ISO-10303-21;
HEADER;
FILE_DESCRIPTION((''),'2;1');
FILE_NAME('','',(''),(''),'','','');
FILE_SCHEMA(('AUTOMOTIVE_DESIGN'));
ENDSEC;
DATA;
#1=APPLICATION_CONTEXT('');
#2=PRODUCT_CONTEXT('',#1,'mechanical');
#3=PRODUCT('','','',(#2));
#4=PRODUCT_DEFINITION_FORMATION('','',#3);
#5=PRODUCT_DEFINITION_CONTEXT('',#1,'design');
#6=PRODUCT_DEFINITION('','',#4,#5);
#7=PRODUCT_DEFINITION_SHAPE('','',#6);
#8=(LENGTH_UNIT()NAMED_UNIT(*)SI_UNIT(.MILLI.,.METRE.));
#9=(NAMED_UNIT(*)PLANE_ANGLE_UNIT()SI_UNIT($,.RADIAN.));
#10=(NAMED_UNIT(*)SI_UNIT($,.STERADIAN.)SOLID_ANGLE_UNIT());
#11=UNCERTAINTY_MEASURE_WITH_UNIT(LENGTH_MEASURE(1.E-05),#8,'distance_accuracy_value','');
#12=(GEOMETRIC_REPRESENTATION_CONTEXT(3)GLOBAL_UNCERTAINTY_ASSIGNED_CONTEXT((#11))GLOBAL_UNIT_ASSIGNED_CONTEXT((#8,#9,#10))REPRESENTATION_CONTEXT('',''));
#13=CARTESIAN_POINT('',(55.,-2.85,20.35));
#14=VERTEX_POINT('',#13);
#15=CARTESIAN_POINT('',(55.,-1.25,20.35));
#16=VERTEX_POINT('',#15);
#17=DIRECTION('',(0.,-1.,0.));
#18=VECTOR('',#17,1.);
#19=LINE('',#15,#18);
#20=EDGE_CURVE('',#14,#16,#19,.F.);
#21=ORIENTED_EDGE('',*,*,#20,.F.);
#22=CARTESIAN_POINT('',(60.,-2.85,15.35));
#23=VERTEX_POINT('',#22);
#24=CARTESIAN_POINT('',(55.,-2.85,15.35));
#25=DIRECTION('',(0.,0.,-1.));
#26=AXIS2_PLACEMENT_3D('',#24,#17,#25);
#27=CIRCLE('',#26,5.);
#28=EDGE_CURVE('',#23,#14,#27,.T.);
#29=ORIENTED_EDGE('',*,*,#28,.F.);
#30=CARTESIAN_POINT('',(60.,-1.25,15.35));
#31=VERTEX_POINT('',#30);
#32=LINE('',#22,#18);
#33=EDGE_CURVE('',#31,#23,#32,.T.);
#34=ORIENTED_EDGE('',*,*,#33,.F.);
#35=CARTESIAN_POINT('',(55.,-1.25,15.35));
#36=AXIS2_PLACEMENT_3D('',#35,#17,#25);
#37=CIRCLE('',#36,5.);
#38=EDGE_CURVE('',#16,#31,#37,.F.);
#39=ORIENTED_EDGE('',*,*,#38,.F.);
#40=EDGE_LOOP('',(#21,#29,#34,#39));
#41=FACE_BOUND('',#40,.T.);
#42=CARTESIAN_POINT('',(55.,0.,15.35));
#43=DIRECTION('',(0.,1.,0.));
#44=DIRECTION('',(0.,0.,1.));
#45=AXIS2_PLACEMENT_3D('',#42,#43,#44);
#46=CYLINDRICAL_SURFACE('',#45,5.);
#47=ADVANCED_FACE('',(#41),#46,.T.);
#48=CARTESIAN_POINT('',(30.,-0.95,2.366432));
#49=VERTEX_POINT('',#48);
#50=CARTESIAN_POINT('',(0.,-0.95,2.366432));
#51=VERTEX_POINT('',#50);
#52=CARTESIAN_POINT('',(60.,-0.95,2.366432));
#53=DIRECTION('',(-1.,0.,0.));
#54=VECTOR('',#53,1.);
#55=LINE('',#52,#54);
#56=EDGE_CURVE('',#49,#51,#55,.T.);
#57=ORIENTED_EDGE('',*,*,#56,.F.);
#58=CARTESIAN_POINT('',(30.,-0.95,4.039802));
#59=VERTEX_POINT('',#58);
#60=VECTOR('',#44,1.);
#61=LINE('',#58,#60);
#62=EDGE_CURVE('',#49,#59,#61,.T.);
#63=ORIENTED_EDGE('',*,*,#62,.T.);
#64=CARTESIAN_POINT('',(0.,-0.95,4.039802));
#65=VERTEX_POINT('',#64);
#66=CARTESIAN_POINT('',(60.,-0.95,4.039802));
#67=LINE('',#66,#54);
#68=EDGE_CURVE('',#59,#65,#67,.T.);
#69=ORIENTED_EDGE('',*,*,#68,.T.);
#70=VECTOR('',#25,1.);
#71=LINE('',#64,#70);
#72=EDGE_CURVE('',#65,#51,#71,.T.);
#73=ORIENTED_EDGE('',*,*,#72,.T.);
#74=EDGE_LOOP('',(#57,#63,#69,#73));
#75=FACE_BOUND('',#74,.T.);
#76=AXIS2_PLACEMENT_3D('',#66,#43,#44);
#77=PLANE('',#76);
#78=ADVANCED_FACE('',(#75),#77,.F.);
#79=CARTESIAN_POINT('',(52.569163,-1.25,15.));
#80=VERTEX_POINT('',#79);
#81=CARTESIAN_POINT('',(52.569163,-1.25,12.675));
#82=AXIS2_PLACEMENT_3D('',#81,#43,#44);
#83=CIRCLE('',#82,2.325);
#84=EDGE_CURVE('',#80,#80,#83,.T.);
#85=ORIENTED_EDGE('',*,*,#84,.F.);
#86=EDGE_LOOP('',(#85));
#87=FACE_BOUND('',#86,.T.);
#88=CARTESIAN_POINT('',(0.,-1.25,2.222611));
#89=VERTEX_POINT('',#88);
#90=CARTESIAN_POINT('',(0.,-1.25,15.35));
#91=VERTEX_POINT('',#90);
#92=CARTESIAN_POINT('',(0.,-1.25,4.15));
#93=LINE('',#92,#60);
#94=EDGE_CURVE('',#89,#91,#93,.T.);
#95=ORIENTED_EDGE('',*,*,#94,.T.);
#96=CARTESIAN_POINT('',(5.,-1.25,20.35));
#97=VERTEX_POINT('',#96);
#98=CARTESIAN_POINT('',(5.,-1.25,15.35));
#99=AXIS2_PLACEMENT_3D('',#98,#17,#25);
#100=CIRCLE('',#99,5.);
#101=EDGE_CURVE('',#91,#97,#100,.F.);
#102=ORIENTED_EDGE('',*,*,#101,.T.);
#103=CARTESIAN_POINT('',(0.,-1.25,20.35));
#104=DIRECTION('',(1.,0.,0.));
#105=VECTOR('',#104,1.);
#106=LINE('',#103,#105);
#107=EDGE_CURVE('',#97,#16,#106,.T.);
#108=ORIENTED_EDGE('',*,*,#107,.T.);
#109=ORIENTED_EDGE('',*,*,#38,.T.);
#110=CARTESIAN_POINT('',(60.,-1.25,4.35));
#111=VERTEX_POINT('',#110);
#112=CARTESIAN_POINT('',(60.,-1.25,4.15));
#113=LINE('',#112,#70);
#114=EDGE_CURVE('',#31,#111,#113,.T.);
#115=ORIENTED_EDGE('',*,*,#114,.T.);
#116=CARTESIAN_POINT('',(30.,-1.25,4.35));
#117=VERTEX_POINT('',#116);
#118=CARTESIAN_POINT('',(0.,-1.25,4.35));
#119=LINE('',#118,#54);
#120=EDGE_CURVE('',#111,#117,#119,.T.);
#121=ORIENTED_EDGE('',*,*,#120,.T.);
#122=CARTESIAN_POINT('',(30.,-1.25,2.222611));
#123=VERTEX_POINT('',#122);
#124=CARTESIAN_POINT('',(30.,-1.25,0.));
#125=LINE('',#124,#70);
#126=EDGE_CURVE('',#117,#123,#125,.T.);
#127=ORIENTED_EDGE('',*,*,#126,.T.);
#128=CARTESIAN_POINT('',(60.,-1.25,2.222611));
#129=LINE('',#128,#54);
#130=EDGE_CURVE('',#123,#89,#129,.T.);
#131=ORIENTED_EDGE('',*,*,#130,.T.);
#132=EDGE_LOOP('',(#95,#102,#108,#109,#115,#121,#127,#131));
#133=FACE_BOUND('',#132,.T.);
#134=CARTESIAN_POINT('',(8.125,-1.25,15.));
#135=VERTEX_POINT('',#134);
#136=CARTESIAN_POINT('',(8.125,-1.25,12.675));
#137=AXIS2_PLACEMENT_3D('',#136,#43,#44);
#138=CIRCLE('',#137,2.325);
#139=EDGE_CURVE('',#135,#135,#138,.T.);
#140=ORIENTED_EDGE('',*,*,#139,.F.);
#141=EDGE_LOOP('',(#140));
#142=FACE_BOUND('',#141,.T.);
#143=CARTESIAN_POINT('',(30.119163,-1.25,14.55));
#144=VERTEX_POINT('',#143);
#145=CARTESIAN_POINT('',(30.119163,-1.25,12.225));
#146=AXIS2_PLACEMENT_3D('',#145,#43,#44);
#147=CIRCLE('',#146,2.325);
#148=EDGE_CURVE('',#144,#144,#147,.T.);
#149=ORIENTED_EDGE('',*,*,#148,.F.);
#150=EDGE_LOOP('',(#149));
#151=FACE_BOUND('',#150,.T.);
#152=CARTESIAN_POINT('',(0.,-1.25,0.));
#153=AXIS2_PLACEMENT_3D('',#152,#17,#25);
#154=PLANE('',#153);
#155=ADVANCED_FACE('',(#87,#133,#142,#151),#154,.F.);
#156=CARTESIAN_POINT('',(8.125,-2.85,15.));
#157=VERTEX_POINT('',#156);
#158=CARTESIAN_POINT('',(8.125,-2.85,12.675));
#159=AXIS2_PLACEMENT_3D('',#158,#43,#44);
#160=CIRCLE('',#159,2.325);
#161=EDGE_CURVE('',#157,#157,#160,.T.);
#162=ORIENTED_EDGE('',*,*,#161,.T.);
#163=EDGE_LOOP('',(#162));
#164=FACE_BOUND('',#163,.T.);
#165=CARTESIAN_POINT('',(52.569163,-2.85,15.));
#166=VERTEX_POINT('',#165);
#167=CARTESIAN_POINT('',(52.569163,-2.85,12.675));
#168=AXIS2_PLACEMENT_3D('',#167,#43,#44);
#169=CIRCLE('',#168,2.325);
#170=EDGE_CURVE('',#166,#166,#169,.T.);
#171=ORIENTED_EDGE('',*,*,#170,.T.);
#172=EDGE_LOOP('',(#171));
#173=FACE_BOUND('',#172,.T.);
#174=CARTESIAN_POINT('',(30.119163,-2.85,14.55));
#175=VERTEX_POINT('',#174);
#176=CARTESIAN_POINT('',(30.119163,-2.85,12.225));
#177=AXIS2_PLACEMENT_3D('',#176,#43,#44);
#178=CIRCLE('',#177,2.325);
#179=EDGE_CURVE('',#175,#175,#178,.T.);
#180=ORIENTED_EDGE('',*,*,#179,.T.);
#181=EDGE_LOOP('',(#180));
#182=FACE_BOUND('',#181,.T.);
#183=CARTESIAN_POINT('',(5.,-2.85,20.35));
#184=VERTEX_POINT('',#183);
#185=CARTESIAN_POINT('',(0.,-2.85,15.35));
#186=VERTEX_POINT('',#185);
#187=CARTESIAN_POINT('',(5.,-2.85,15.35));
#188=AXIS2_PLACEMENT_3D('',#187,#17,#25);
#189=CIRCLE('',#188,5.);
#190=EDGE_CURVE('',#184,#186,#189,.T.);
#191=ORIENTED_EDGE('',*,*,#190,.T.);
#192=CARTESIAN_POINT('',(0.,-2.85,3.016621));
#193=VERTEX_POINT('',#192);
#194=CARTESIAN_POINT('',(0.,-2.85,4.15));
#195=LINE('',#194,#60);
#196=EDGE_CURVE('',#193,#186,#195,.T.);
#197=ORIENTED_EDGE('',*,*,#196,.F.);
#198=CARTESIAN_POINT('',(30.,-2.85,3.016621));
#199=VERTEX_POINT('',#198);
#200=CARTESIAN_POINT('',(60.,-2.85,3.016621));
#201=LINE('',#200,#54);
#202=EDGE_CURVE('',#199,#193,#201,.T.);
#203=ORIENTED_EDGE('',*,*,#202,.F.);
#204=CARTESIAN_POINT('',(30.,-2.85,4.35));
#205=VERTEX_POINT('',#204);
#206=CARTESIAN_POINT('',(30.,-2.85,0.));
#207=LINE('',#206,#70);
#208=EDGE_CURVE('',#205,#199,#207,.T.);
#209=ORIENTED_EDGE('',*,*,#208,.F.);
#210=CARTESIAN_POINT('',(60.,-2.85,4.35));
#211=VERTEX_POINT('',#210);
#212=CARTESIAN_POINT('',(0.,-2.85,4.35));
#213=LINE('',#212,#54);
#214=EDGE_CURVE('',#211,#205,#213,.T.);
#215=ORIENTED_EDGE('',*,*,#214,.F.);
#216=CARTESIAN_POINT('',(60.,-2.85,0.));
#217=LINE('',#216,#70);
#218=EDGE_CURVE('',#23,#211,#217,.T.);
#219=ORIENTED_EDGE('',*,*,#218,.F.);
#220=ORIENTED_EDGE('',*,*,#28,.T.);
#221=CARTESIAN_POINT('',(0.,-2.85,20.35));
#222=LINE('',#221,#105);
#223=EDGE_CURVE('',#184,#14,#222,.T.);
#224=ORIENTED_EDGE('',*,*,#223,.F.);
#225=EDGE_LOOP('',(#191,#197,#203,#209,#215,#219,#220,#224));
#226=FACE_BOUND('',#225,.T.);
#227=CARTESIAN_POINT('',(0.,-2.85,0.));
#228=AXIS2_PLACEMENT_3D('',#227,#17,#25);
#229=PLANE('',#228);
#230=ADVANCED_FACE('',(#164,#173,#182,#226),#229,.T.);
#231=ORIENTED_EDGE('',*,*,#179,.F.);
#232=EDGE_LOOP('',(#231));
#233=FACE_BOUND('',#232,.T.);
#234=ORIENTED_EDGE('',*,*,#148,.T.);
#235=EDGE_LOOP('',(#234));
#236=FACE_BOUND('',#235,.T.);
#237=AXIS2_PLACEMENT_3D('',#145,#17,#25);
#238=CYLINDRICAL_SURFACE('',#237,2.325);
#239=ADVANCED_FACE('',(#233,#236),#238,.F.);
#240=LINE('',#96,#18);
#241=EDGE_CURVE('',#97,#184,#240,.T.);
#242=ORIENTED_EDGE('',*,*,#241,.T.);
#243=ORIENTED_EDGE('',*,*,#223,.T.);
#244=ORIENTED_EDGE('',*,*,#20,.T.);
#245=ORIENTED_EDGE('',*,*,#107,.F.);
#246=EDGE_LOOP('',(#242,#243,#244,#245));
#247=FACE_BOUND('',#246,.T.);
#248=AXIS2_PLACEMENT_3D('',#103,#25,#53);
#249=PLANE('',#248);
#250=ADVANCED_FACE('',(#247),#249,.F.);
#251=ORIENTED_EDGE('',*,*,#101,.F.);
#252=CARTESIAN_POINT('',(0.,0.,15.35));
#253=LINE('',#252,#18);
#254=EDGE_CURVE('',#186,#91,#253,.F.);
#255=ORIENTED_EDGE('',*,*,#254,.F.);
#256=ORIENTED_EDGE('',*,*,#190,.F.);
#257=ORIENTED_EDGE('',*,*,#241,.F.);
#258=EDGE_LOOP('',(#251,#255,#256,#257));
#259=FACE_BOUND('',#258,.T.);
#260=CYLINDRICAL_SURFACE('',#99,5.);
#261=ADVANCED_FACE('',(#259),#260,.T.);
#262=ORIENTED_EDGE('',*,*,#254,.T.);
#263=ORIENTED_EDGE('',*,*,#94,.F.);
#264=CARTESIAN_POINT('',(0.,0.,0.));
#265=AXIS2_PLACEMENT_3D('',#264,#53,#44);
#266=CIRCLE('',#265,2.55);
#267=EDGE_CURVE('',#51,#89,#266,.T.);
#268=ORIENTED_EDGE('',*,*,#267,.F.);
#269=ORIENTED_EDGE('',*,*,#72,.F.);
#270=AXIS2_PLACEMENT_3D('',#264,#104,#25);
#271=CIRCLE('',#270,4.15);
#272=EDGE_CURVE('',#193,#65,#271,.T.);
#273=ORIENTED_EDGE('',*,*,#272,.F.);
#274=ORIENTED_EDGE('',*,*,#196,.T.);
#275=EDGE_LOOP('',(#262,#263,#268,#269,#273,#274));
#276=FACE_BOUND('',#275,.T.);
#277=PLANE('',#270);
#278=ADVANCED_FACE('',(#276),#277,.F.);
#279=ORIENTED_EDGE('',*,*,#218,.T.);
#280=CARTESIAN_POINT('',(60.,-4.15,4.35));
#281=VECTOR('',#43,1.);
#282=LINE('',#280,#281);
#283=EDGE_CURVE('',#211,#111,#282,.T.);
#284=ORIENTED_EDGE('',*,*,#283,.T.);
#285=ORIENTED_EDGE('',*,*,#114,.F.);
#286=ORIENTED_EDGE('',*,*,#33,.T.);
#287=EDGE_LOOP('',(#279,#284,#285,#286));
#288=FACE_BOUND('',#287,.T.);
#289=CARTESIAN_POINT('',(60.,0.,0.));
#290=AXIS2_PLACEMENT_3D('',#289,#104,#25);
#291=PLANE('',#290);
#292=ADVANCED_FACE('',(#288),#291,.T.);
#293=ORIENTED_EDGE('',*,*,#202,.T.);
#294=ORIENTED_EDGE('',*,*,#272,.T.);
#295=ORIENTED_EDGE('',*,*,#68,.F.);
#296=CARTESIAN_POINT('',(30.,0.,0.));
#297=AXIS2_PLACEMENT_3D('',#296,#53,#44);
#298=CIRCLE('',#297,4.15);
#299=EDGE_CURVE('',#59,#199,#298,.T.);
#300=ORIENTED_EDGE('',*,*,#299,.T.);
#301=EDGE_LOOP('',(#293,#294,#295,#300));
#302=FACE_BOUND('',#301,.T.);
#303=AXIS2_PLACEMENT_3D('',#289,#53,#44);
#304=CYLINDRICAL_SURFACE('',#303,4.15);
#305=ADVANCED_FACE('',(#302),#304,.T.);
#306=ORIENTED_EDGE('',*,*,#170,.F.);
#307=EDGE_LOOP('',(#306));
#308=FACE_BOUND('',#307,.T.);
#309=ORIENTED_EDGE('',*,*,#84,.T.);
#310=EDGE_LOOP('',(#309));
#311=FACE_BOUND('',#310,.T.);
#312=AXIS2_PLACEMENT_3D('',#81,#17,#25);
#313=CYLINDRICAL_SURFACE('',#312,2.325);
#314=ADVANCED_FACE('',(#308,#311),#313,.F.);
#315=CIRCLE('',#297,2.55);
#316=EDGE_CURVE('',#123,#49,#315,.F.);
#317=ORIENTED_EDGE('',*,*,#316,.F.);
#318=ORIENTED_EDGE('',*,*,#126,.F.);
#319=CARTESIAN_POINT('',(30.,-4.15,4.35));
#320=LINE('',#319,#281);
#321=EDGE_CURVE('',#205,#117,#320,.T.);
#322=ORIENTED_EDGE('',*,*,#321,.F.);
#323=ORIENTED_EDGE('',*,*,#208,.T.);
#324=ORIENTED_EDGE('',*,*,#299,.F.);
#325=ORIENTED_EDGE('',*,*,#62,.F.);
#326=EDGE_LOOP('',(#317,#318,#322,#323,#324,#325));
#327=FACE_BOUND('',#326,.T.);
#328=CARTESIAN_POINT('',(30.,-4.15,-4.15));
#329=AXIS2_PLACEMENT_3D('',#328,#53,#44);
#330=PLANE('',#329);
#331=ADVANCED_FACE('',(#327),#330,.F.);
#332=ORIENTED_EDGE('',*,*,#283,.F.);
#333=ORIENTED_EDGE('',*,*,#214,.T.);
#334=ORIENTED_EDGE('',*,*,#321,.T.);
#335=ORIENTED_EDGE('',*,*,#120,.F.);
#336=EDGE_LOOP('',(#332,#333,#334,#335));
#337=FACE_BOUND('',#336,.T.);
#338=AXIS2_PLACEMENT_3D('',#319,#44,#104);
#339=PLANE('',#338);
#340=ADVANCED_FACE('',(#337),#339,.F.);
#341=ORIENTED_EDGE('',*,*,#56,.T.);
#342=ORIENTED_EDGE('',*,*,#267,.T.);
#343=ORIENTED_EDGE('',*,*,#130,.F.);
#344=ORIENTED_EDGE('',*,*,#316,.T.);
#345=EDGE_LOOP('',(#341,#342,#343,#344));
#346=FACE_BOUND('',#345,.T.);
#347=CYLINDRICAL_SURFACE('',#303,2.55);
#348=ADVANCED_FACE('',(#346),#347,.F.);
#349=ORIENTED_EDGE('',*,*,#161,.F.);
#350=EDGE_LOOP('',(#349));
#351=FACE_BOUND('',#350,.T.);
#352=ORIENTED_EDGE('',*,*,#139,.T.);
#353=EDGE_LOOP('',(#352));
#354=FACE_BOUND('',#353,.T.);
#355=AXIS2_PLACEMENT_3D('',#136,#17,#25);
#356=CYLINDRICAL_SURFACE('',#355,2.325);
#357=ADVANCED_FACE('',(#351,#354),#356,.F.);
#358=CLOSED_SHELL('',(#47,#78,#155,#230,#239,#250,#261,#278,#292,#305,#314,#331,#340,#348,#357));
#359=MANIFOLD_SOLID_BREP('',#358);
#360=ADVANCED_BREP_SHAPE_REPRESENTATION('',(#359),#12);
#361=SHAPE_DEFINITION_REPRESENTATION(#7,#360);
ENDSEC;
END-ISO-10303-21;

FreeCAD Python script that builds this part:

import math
import FreeCAD as App
import Part
import Sketcher

V = App.Vector


def edges_at(feature, points):
    """Names of the edges that pass closest to the given points."""
    edges = feature.Shape.Edges
    near = lambda p: min(range(len(edges)), key=lambda i: edges[i].distToShape(Part.Vertex(*p))[0])
    return sorted({f"Edge{near(p) + 1}" for p in points})

doc = App.newDocument("Part")
params = doc.addObject("Spreadsheet::Sheet", "Params")
for row, (alias, value) in enumerate([
    ("sketch1_diameter", "8.3 mm"),
    ("pad1_length", "60 mm"),
    ("sketch2_diameter", "4.65 mm"),
    ("sketch2_width", "60 mm"),
    ("sketch2_height", "20.35 mm"),
    ("pad2_length", "1.6 mm"),
    ("fillet_radius", "5 mm"),
    ("sketch3_radius", "2.55 mm"),
    ("sketch3_width", "0.3 mm"),
    ("sketch4_width", "30 mm"),
    ("sketch4_height", "8.5 mm"),
], start=1):
    params.set(f"A{row}", alias)
    params.set(f"B{row}", "=" + value)
    params.setAlias(f"B{row}", alias)

body = doc.addObject("PartDesign::Body", "Body")

sketch1 = body.newObject("Sketcher::SketchObject", "Sketch")
sketch1.AttachmentSupport = (doc.getObject("YZ_Plane"), [""])
sketch1.MapMode = "FlatFace"
sketch1.addGeometry(Part.Circle(V(0, 0, 0), V(0, 0, 1), 4.2), False)
sketch1.addConstraint(Sketcher.Constraint("Coincident", 0, 3, -1, 1))
sketch1.addConstraint(Sketcher.Constraint("Diameter", 0, 8.3))
sketch1.setExpression("Constraints[1]", "Params.sketch1_diameter")
pad1 = body.newObject("PartDesign::Pad", "Pad")
pad1.Profile = sketch1
pad1.setExpression("Length", "Params.pad1_length")

sketch2 = body.newObject("Sketcher::SketchObject", "Sketch001")
sketch2.AttachmentSupport = (doc.getObject("XZ_Plane"), [""])
sketch2.MapMode = "FlatFace"
sketch2.AttachmentOffset = App.Placement(V(0, 0, 2.85), App.Rotation())
sketch2.addGeometry(Part.LineSegment(V(0, 20.4, 0), V(60, 20.4, 0)), False)
sketch2.addGeometry(Part.LineSegment(V(60, 20.4, 0), V(60, 0, 0)), False)
sketch2.addGeometry(Part.LineSegment(V(60, 0, 0), V(0, 0, 0)), False)
sketch2.addGeometry(Part.LineSegment(V(0, 0, 0), V(0, 20.4, 0)), False)
sketch2.addGeometry(Part.Circle(V(8.1, 12.7, 0), V(0, 0, 1), 2.3), False)
sketch2.addGeometry(Part.Circle(V(52.6, 12.7, 0), V(0, 0, 1), 2.3), False)
sketch2.addGeometry(Part.Circle(V(30.1, 12.2, 0), V(0, 0, 1), 2.3), False)
sketch2.addConstraint(Sketcher.Constraint("Coincident", 0, 2, 1, 1))
sketch2.addConstraint(Sketcher.Constraint("Coincident", 1, 2, 2, 1))
sketch2.addConstraint(Sketcher.Constraint("Coincident", 2, 2, 3, 1))
sketch2.addConstraint(Sketcher.Constraint("Coincident", 3, 2, 0, 1))
sketch2.addConstraint(Sketcher.Constraint("Horizontal", 0))
sketch2.addConstraint(Sketcher.Constraint("Vertical", 1))
sketch2.addConstraint(Sketcher.Constraint("Horizontal", 2))
sketch2.addConstraint(Sketcher.Constraint("Vertical", 3))
sketch2.addConstraint(Sketcher.Constraint("Coincident", 2, 2, -1, 1))
sketch2.addConstraint(Sketcher.Constraint("Equal", 4, 5))
sketch2.addConstraint(Sketcher.Constraint("Equal", 5, 6))
sketch2.addConstraint(Sketcher.Constraint("Horizontal", 4, 3, 5, 3))
sketch2.addConstraint(Sketcher.Constraint("Diameter", 4, 4.65))
sketch2.addConstraint(Sketcher.Constraint("DistanceX", 0, 1, 0, 2, 60.0))
sketch2.addConstraint(Sketcher.Constraint("DistanceY", 1, 2, 1, 1, 20.35))
sketch2.addConstraint(Sketcher.Constraint("DistanceY", 6, 3, 4, 3, 0.45))
sketch2.addConstraint(Sketcher.Constraint("DistanceX", 6, 3, 5, 3, 22.45))
sketch2.addConstraint(Sketcher.Constraint("DistanceX", -1, 1, 4, 3, 8.125))
sketch2.addConstraint(Sketcher.Constraint("DistanceY", -1, 1, 4, 3, 12.675))
sketch2.addConstraint(Sketcher.Constraint("DistanceX", -1, 1, 5, 3, 52.569163))
sketch2.setExpression("Constraints[12]", "Params.sketch2_diameter")
sketch2.setExpression("Constraints[13]", "Params.sketch2_width")
sketch2.setExpression("Constraints[14]", "Params.sketch2_height")
pad2 = body.newObject("PartDesign::Pad", "Pad001")
pad2.Profile = sketch2
pad2.setExpression("Length", "Params.pad2_length")
pad2.Reversed = True
doc.recompute()

fillet = body.newObject("PartDesign::Fillet", "Fillet")
fillet.Base = (pad2, edges_at(pad2, [(0, -2.05, 20.35), (60, -2.05, 20.35)]))
fillet.setExpression("Radius", "Params.fillet_radius")

sketch3 = body.newObject("Sketcher::SketchObject", "Sketch002")
sketch3.AttachmentSupport = (doc.getObject("YZ_Plane"), [""])
sketch3.MapMode = "FlatFace"
sketch3.addGeometry(Part.ArcOfCircle(Part.Circle(V(0, 0, 0), V(0, 0, 1), 2.55), math.radians(119), math.radians(472)), False)
sketch3.addGeometry(Part.LineSegment(V(-1.25, 2.22, 0), V(-1.25, 4.04, 0)), False)
sketch3.addGeometry(Part.LineSegment(V(-1.25, 4.04, 0), V(-0.95, 4.04, 0)), False)
sketch3.addGeometry(Part.LineSegment(V(-0.95, 4.04, 0), V(-0.95, 2.37, 0)), False)
sketch3.addConstraint(Sketcher.Constraint("Coincident", 0, 1, 1, 1))
sketch3.addConstraint(Sketcher.Constraint("Coincident", 1, 2, 2, 1))
sketch3.addConstraint(Sketcher.Constraint("Coincident", 2, 2, 3, 1))
sketch3.addConstraint(Sketcher.Constraint("Coincident", 3, 2, 0, 2))
sketch3.addConstraint(Sketcher.Constraint("Vertical", 1))
sketch3.addConstraint(Sketcher.Constraint("Horizontal", 2))
sketch3.addConstraint(Sketcher.Constraint("Vertical", 3))
sketch3.addConstraint(Sketcher.Constraint("Coincident", 0, 3, -1, 1))
sketch3.addConstraint(Sketcher.Constraint("Radius", 0, 2.55))
sketch3.addConstraint(Sketcher.Constraint("DistanceX", 2, 1, 2, 2, 0.3))
sketch3.addConstraint(Sketcher.Constraint("DistanceX", 0, 1, -1, 1, 1.25))
sketch3.addConstraint(Sketcher.Constraint("DistanceY", 1, 1, 1, 2, 1.817191))
sketch3.setExpression("Constraints[8]", "Params.sketch3_radius")
sketch3.setExpression("Constraints[9]", "Params.sketch3_width")
pocket1 = body.newObject("PartDesign::Pocket", "Pocket")
pocket1.Profile = sketch3
pocket1.Type = "ThroughAll"
pocket1.Reversed = True

sketch4 = body.newObject("Sketcher::SketchObject", "Sketch003")
sketch4.AttachmentSupport = (doc.getObject("XZ_Plane"), [""])
sketch4.MapMode = "FlatFace"
sketch4.AttachmentOffset = App.Placement(V(0, 0, 1.25), App.Rotation())
sketch4.addGeometry(Part.LineSegment(V(30, -4, 0), V(30, 4, 0)), False)
sketch4.addGeometry(Part.LineSegment(V(30, 4, 0), V(60, 4, 0)), False)
sketch4.addGeometry(Part.LineSegment(V(60, 4, 0), V(60, -4, 0)), False)
sketch4.addGeometry(Part.LineSegment(V(60, -4, 0), V(30, -4, 0)), False)
sketch4.addConstraint(Sketcher.Constraint("Coincident", 0, 2, 1, 1))
sketch4.addConstraint(Sketcher.Constraint("Coincident", 1, 2, 2, 1))
sketch4.addConstraint(Sketcher.Constraint("Coincident", 2, 2, 3, 1))
sketch4.addConstraint(Sketcher.Constraint("Coincident", 3, 2, 0, 1))
sketch4.addConstraint(Sketcher.Constraint("Vertical", 0))
sketch4.addConstraint(Sketcher.Constraint("Horizontal", 1))
sketch4.addConstraint(Sketcher.Constraint("Vertical", 2))
sketch4.addConstraint(Sketcher.Constraint("Horizontal", 3))
sketch4.addConstraint(Sketcher.Constraint("DistanceX", 1, 1, 1, 2, 30.0))
sketch4.addConstraint(Sketcher.Constraint("DistanceY", 0, 1, 0, 2, 8.5))
sketch4.addConstraint(Sketcher.Constraint("DistanceX", -1, 1, 0, 2, 30.0))
sketch4.addConstraint(Sketcher.Constraint("DistanceY", -1, 1, 0, 2, 4.35))
sketch4.setExpression("Constraints[8]", "Params.sketch4_width")
sketch4.setExpression("Constraints[9]", "Params.sketch4_height")
pocket2 = body.newObject("PartDesign::Pocket", "Pocket001")
pocket2.Profile = sketch4
pocket2.Type = "ThroughAll"
pocket2.Midplane = True

doc.recompute()
